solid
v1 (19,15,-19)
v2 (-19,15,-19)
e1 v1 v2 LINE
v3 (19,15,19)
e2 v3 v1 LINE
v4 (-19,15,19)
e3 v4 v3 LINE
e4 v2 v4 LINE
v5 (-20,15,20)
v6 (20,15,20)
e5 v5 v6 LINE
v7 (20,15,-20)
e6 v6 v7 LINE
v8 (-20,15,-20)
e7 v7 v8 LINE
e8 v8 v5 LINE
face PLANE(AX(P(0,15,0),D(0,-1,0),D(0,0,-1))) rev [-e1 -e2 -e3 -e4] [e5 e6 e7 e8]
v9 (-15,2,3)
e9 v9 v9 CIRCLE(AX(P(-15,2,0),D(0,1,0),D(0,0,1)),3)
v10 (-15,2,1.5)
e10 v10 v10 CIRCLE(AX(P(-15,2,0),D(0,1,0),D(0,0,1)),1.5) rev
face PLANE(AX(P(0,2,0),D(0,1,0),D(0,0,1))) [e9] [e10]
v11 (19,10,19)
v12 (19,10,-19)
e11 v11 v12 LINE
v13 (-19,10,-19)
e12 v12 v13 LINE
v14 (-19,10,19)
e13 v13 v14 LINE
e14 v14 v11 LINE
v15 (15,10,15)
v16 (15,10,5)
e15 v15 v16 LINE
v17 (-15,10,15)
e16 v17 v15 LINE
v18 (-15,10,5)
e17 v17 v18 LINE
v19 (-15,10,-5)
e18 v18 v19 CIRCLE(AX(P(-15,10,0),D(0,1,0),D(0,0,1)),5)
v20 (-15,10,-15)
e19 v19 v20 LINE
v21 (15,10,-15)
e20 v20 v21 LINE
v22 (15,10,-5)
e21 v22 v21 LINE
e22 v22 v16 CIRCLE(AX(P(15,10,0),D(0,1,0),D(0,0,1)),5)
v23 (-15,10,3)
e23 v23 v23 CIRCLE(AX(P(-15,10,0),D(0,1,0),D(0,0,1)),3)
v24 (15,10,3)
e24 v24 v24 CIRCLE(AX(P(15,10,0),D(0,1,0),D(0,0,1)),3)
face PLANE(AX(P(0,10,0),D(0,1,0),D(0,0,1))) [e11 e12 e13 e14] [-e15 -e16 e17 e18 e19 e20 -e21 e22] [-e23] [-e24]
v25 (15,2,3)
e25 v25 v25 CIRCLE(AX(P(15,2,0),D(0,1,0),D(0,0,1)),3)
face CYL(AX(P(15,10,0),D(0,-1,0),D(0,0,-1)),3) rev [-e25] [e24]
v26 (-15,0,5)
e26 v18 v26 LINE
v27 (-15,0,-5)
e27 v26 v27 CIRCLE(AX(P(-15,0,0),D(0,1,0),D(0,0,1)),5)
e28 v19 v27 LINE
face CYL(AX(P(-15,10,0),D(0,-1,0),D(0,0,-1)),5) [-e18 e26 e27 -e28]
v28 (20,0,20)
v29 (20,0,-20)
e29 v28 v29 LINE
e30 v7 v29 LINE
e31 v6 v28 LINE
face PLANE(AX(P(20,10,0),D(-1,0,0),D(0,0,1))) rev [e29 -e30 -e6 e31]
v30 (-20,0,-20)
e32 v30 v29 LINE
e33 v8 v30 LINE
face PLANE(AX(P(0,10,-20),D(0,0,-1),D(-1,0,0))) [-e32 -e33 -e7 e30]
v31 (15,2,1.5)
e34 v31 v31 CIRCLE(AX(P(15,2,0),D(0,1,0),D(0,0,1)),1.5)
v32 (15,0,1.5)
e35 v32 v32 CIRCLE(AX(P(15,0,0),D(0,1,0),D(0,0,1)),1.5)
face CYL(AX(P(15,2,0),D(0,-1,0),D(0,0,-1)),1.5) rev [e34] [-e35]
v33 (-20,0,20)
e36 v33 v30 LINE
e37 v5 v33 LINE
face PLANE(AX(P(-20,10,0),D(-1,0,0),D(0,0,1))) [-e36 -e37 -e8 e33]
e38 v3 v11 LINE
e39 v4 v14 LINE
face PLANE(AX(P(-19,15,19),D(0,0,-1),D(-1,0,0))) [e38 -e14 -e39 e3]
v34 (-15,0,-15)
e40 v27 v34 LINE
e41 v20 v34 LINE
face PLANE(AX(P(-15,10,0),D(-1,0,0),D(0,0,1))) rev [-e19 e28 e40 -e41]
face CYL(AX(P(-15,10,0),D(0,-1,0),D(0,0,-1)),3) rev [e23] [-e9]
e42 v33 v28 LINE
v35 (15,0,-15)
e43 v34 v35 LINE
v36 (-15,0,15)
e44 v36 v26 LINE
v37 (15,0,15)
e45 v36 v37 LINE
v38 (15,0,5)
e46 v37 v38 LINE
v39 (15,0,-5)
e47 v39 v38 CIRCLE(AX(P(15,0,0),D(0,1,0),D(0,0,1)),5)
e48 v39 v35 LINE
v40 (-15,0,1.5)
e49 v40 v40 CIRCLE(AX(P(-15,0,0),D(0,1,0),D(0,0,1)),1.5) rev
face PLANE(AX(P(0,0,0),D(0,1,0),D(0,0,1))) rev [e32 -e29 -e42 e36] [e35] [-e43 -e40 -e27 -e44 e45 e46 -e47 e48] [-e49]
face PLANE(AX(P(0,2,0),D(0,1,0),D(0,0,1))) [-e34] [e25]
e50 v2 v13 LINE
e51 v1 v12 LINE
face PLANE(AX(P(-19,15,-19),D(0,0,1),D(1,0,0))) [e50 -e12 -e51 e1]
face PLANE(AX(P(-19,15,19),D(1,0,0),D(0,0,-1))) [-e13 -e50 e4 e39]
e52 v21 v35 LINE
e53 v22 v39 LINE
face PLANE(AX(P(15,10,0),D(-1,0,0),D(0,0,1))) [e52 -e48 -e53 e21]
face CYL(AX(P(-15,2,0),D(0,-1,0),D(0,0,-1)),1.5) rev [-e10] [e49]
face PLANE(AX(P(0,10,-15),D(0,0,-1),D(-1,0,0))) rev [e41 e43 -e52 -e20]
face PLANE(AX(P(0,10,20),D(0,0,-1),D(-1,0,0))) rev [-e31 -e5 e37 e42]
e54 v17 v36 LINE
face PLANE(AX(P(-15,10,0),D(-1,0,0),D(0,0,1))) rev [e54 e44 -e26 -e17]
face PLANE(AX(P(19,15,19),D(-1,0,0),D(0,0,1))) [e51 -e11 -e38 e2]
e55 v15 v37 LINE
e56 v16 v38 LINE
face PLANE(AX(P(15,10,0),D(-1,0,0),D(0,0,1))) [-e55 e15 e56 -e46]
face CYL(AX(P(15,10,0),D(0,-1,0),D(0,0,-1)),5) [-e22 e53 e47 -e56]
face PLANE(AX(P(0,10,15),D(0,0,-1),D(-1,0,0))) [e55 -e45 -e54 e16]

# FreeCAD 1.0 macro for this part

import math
import FreeCAD as App
import Part
import Sketcher
Q = App.Units.Quantity

doc = App.newDocument("Part")
body = doc.addObject("PartDesign::Body", "Body")

# Sketch on XZ plane
sketch1 = body.newObject("Sketcher::SketchObject", "Sketch")
sketch1.AttachmentSupport = (doc.getObject("XZ_Plane"), [""])
sketch1.MapMode = "FlatFace"
sketch1.addGeometry([
    Part.LineSegment(App.Vector(-20, -20, 0), App.Vector(-20, 20, 0)),  # 0
    Part.LineSegment(App.Vector(-20, 20, 0), App.Vector(20, 20, 0)),  # 1
    Part.LineSegment(App.Vector(20, 20, 0), App.Vector(20, -20, 0)),  # 2
    Part.LineSegment(App.Vector(20, -20, 0), App.Vector(-20, -20, 0)),  # 3
    Part.ArcOfCircle(Part.Circle(App.Vector(15, 0, 0), App.Vector(0, 0, 1), 5), math.radians(90), math.radians(270)),  # 4
    Part.LineSegment(App.Vector(15, 5, 0), App.Vector(15, 15, 0)),  # 5
    Part.LineSegment(App.Vector(15, 15, 0), App.Vector(-15, 15, 0)),  # 6
    Part.LineSegment(App.Vector(-15, 15, 0), App.Vector(-15, 3, 0)),  # 7
    Part.ArcOfCircle(Part.Circle(App.Vector(-15, 0, 0), App.Vector(0, 0, 1), 3), math.radians(90), math.radians(270)),  # 8
    Part.LineSegment(App.Vector(-15, -3, 0), App.Vector(-15, -15, 0)),  # 9
    Part.LineSegment(App.Vector(-15, -15, 0), App.Vector(15, -15, 0)),  # 10
    Part.LineSegment(App.Vector(15, -15, 0), App.Vector(15, -5, 0)),  # 11
    Part.Circle(App.Vector(15, 0, 0), App.Vector(0, 0, 1), 3),  # 12
], False)
sketch1.addConstraint([
    Sketcher.Constraint("Coincident", 0, 2, 1, 1),
    Sketcher.Constraint("Coincident", 1, 2, 2, 1),
    Sketcher.Constraint("Coincident", 2, 2, 3, 1),
    Sketcher.Constraint("Coincident", 3, 2, 0, 1),
    Sketcher.Constraint("Coincident", 4, 1, 5, 1),
    Sketcher.Constraint("Coincident", 5, 2, 6, 1),
    Sketcher.Constraint("Coincident", 6, 2, 7, 1),
    Sketcher.Constraint("Coincident", 7, 2, 8, 1),
    Sketcher.Constraint("Coincident", 8, 2, 9, 1),
    Sketcher.Constraint("Coincident", 9, 2, 10, 1),
    Sketcher.Constraint("Coincident", 10, 2, 11, 1),
    Sketcher.Constraint("Coincident", 11, 2, 4, 2),
    Sketcher.Constraint("Vertical", 0),
    Sketcher.Constraint("Horizontal", 1),
    Sketcher.Constraint("Vertical", 2),
    Sketcher.Constraint("Horizontal", 3),
    Sketcher.Constraint("Vertical", 5),
    Sketcher.Constraint("Horizontal", 6),
    Sketcher.Constraint("Vertical", 7),
    Sketcher.Constraint("Vertical", 9),
    Sketcher.Constraint("Horizontal", 10),
    Sketcher.Constraint("Vertical", 11),
    Sketcher.Constraint("Coincident", 12, 3, 4, 3),
    Sketcher.Constraint("Equal", 8, 12),
    Sketcher.Constraint("Symmetric", 4, 3, 8, 3, -1, 1),
    Sketcher.Constraint("Symmetric", 0, 2, 2, 2, -1, 1),
    Sketcher.Constraint("Symmetric", 5, 2, 9, 2, -1, 1),
    Sketcher.Constraint("Symmetric", 7, 2, 8, 2, -1),
    Sketcher.Constraint("Vertical", 12, 3, 4, 1),
    Sketcher.Constraint("Vertical", 5, 2, 10, 2),
    Sketcher.Constraint("Equal", 3, 0),
    Sketcher.Constraint("Diameter", 12, Q("6 mm")),
    Sketcher.Constraint("Radius", 4, Q("5 mm")),
    Sketcher.Constraint("DistanceX", 1, 1, 1, 2, Q("40 mm")),
    Sketcher.Constraint("DistanceX", 6, 2, 6, 1, Q("30 mm")),
    Sketcher.Constraint("DistanceY", 5, 1, 5, 2, Q("10 mm")),
])
pad1 = body.newObject("PartDesign::Pad", "Pad")
pad1.Profile = sketch1
pad1.Length = 10
pad1.Reversed = True

# Sketch on XZ plane
sketch2 = body.newObject("Sketcher::SketchObject", "Sketch001")
sketch2.AttachmentSupport = (doc.getObject("XZ_Plane"), [""])
sketch2.MapMode = "FlatFace"
sketch2.addGeometry([
    Part.ArcOfCircle(Part.Circle(App.Vector(-15, 0, 0), App.Vector(0, 0, 1), 5), math.radians(-90), math.radians(0)),  # 0
    Part.ArcOfCircle(Part.Circle(App.Vector(-15, 0, 0), App.Vector(0, 0, 1), 5), math.radians(-180), math.radians(-90)),  # 1
    Part.ArcOfCircle(Part.Circle(App.Vector(-15, 0, 0), App.Vector(0, 0, 1), 5), math.radians(90), math.radians(180)),  # 2
    Part.ArcOfCircle(Part.Circle(App.Vector(-15, 0, 0), App.Vector(0, 0, 1), 5), math.radians(0), math.radians(90)),  # 3
    Part.ArcOfCircle(Part.Circle(App.Vector(-15, 0, 0), App.Vector(0, 0, 1), 3), math.radians(-90), math.radians(0)),  # 4
    Part.ArcOfCircle(Part.Circle(App.Vector(-15, 0, 0), App.Vector(0, 0, 1), 3), math.radians(0), math.radians(90)),  # 5
    Part.ArcOfCircle(Part.Circle(App.Vector(-15, 0, 0), App.Vector(0, 0, 1), 3), math.radians(90), math.radians(270)),  # 6
], False)
sketch2.addConstraint([
    Sketcher.Constraint("Tangent", 0, 1, 1, 2),
    Sketcher.Constraint("Tangent", 1, 1, 2, 2),
    Sketcher.Constraint("Tangent", 2, 1, 3, 2),
    Sketcher.Constraint("Tangent", 3, 1, 0, 2),
    Sketcher.Constraint("Tangent", 4, 2, 5, 1),
    Sketcher.Constraint("Tangent", 5, 2, 6, 1),
    Sketcher.Constraint("Tangent", 6, 2, 4, 1),
    Sketcher.Constraint("Coincident", 4, 3, 0, 3),
    Sketcher.Constraint("Equal", 0, 1),
    Sketcher.Constraint("Symmetric", 0, 1, 2, 1, -1),
    Sketcher.Constraint("PointOnObject", 1, 1, -1),
    Sketcher.Constraint("PointOnObject", 3, 1, -1),
    Sketcher.Constraint("PointOnObject", 4, 2, -1),
    Sketcher.Constraint("Vertical", 6, 3, 0, 1),
    Sketcher.Constraint("Vertical", 2, 1, 5, 2),
    Sketcher.Constraint("Vertical", 5, 2, 6, 2),
    Sketcher.Constraint("Radius", 0, Q("5 mm")),
    Sketcher.Constraint("Radius", 4, Q("3 mm")),
    Sketcher.Constraint("DistanceX", 0, 3, -1, 1, Q("15 mm")),
])
pad2 = body.newObject("PartDesign::Pad", "Pad001")
pad2.Profile = sketch2
pad2.Length = 10
pad2.Reversed = True

# Sketch on XZ plane
sketch3 = body.newObject("Sketcher::SketchObject", "Sketch002")
sketch3.AttachmentSupport = (doc.getObject("XZ_Plane"), [""])
sketch3.MapMode = "FlatFace"
sketch3.addGeometry([
    Part.ArcOfCircle(Part.Circle(App.Vector(-15, 0, 0), App.Vector(0, 0, 1), 3), math.radians(-90), math.radians(0)),  # 0
    Part.ArcOfCircle(Part.Circle(App.Vector(-15, 0, 0), App.Vector(0, 0, 1), 3), math.radians(90), math.radians(270)),  # 1
    Part.ArcOfCircle(Part.Circle(App.Vector(-15, 0, 0), App.Vector(0, 0, 1), 3), math.radians(0), math.radians(90)),  # 2
    Part.ArcOfCircle(Part.Circle(App.Vector(-15, 0, 0), App.Vector(0, 0, 1), 1.5), math.radians(0), math.radians(90)),  # 3
    Part.ArcOfCircle(Part.Circle(App.Vector(-15, 0, 0), App.Vector(0, 0, 1), 1.5), math.radians(90), math.radians(270)),  # 4
    Part.ArcOfCircle(Part.Circle(App.Vector(-15, 0, 0), App.Vector(0, 0, 1), 1.5), math.radians(-90), math.radians(0)),  # 5
    Part.ArcOfCircle(Part.Circle(App.Vector(15, 0, 0), App.Vector(0, 0, 1), 3), math.radians(-90), math.radians(0)),  # 6
    Part.ArcOfCircle(Part.Circle(App.Vector(15, 0, 0), App.Vector(0, 0, 1), 3), math.radians(90), math.radians(270)),  # 7
    Part.ArcOfCircle(Part.Circle(App.Vector(15, 0, 0), App.Vector(0, 0, 1), 3), math.radians(0), math.radians(90)),  # 8
    Part.ArcOfCircle(Part.Circle(App.Vector(15, 0, 0), App.Vector(0, 0, 1), 1.5), math.radians(0), math.radians(90)),  # 9
    Part.ArcOfCircle(Part.Circle(App.Vector(15, 0, 0), App.Vector(0, 0, 1), 1.5), math.radians(90), math.radians(270)),  # 10
    Part.ArcOfCircle(Part.Circle(App.Vector(15, 0, 0), App.Vector(0, 0, 1), 1.5), math.radians(-90), math.radians(0)),  # 11
], False)
sketch3.addConstraint([
    Sketcher.Constraint("Tangent", 0, 1, 1, 2),
    Sketcher.Constraint("Tangent", 1, 1, 2, 2),
    Sketcher.Constraint("Tangent", 2, 1, 0, 2),
    Sketcher.Constraint("Tangent", 3, 2, 4, 1),
    Sketcher.Constraint("Tangent", 4, 2, 5, 1),
    Sketcher.Constraint("Tangent", 5, 2, 3, 1),
    Sketcher.Constraint("Tangent", 6, 1, 7, 2),
    Sketcher.Constraint("Tangent", 7, 1, 8, 2),
    Sketcher.Constraint("Tangent", 8, 1, 6, 2),
    Sketcher.Constraint("Tangent", 9, 2, 10, 1),
    Sketcher.Constraint("Tangent", 10, 2, 11, 1),
    Sketcher.Constraint("Tangent", 11, 2, 9, 1),
    Sketcher.Constraint("Coincident", 3, 3, 0, 3),
    Sketcher.Constraint("Coincident", 9, 3, 6, 3),
    Sketcher.Constraint("Equal", 2, 6),
    Sketcher.Constraint("Equal", 5, 9),
    Sketcher.Constraint("Symmetric", 0, 3, 6, 3, -1, 1),
    Sketcher.Constraint("Symmetric", 0, 1, 6, 1, -2),
    Sketcher.Constraint("PointOnObject", 2, 1, -1),
    Sketcher.Constraint("PointOnObject", 5, 2, -1),
    Sketcher.Constraint("PointOnObject", 8, 1, -1),
    Sketcher.Constraint("PointOnObject", 11, 2, -1),
    Sketcher.Constraint("Vertical", 5, 3, 0, 1),
    Sketcher.Constraint("Vertical", 0, 1, 1, 1),
    Sketcher.Constraint("Vertical", 1, 1, 3, 2),
    Sketcher.Constraint("Vertical", 3, 2, 4, 2),
    Sketcher.Constraint("Vertical", 6, 1, 7, 1),
    Sketcher.Constraint("Vertical", 7, 1, 9, 2),
    Sketcher.Constraint("Vertical", 9, 2, 10, 2),
    Sketcher.Constraint("Radius", 0, Q("3 mm")),
    Sketcher.Constraint("Radius", 3, Q("1.5 mm")),
    Sketcher.Constraint("DistanceX", 0, 3, -1, 1, Q("15 mm")),
])
pad3 = body.newObject("PartDesign::Pad", "Pad002")
pad3.Profile = sketch3
pad3.Length = 2
pad3.Reversed = True

# Sketch on XZ plane
sketch4 = body.newObject("Sketcher::SketchObject", "Sketch003")
sketch4.AttachmentSupport = (doc.getObject("XZ_Plane"), [""])
sketch4.MapMode = "FlatFace"
sketch4.AttachmentOffset = App.Placement(App.Vector(0, 0, -10), App.Rotation())
sketch4.addGeometry([
    Part.LineSegment(App.Vector(-20, -20, 0), App.Vector(-20, 20, 0)),  # 0
    Part.LineSegment(App.Vector(-20, 20, 0), App.Vector(20, 20, 0)),  # 1
    Part.LineSegment(App.Vector(20, 20, 0), App.Vector(20, -20, 0)),  # 2
    Part.LineSegment(App.Vector(20, -20, 0), App.Vector(-20, -20, 0)),  # 3
    Part.LineSegment(App.Vector(19, 19, 0), App.Vector(-19, 19, 0)),  # 4
    Part.LineSegment(App.Vector(-19, 19, 0), App.Vector(-19, -19, 0)),  # 5
    Part.LineSegment(App.Vector(-19, -19, 0), App.Vector(19, -19, 0)),  # 6
    Part.LineSegment(App.Vector(19, -19, 0), App.Vector(19, 19, 0)),  # 7
], False)
sketch4.addConstraint([
    Sketcher.Constraint("Coincident", 0, 2, 1, 1),
    Sketcher.Constraint("Coincident", 1, 2, 2, 1),
    Sketcher.Constraint("Coincident", 2, 2, 3, 1),
    Sketcher.Constraint("Coincident", 3, 2, 0, 1),
    Sketcher.Constraint("Coincident", 4, 2, 5, 1),
    Sketcher.Constraint("Coincident", 5, 2, 6, 1),
    Sketcher.Constraint("Coincident", 6, 2, 7, 1),
    Sketcher.Constraint("Coincident", 7, 2, 4, 1),
    Sketcher.Constraint("Vertical", 0),
    Sketcher.Constraint("Horizontal", 1),
    Sketcher.Constraint("Vertical", 2),
    Sketcher.Constraint("Horizontal", 3),
    Sketcher.Constraint("Horizontal", 4),
    Sketcher.Constraint("Vertical", 5),
    Sketcher.Constraint("Horizontal", 6),
    Sketcher.Constraint("Vertical", 7),
    Sketcher.Constraint("Symmetric", 0, 2, 2, 2, -1, 1),
    Sketcher.Constraint("Symmetric", 4, 2, 6, 2, -1, 1),
    Sketcher.Constraint("Equal", 3, 0),
    Sketcher.Constraint("Equal", 6, 5),
    Sketcher.Constraint("DistanceX", 1, 1, 1, 2, Q("40 mm")),
    Sketcher.Constraint("DistanceX", 4, 2, 4, 1, Q("38 mm")),
])
pad4 = body.newObject("PartDesign::Pad", "Pad003")
pad4.Profile = sketch4
pad4.Length = 5
pad4.Reversed = True

doc.recompute()
